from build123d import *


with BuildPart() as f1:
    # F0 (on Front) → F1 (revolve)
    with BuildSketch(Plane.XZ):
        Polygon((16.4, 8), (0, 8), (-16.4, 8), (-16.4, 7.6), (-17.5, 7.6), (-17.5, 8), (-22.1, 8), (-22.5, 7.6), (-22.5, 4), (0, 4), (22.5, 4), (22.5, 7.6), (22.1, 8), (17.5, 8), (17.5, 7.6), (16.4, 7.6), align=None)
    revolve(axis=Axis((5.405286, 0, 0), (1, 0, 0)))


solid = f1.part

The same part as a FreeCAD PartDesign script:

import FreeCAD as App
import Part
import Sketcher
Q = App.Units.Quantity


def add_polygon(sketch, points):
    """Adds a closed chain of lines whose ends are joined by coincident constraints."""
    first, n = sketch.GeometryCount, len(points)
    for a, b in zip(points, points[1:] + points[:1]):
        sketch.addGeometry(Part.LineSegment(App.Vector(*a, 0), App.Vector(*b, 0)), False)
    for i in range(n):
        sketch.addConstraint(Sketcher.Constraint("Coincident", first + i, 2, first + (i + 1) % n, 1))

doc = App.newDocument("Part")
body = doc.addObject("PartDesign::Body", "Body")

# Sketch on XZ plane
sketch1 = body.newObject("Sketcher::SketchObject", "Sketch")
sketch1.AttachmentSupport = (doc.getObject("XZ_Plane"), [""])
sketch1.MapMode = "FlatFace"
add_polygon(sketch1, [(16.4, 8), (-16.4, 8), (-16.4, 7.6), (-17.5, 7.6), (-17.5, 8), (-22.1, 8), (-22.5, 7.6), (-22.5, 4), (22.5, 4), (22.5, 7.6), (22.1, 8), (17.5, 8), (17.5, 7.6), (16.4, 7.6)])  # lines 0-13
sketch1.addConstraint([
    Sketcher.Constraint("Horizontal", 0),
    Sketcher.Constraint("Vertical", 1),
    Sketcher.Constraint("Horizontal", 2),
    Sketcher.Constraint("Vertical", 3),
    Sketcher.Constraint("Horizontal", 4),
    Sketcher.Constraint("Vertical", 6),
    Sketcher.Constraint("Horizontal", 7),
    Sketcher.Constraint("Vertical", 8),
    Sketcher.Constraint("Horizontal", 10),
    Sketcher.Constraint("Vertical", 11),
    Sketcher.Constraint("Horizontal", 12),
    Sketcher.Constraint("Vertical", 13),
    Sketcher.Constraint("Symmetric", 5, 2, 8, 2, -2),
    Sketcher.Constraint("Symmetric", 4, 2, 9, 2, -2),
    Sketcher.Constraint("Symmetric", 2, 2, 11, 2, -2),
    Sketcher.Constraint("Perpendicular", 5, 9),
    Sketcher.Constraint("Horizontal", 0, 2, 3, 2),
    Sketcher.Constraint("Horizontal", 2, 2, 5, 2),
    Sketcher.Constraint("Equal", 2, 12),
    Sketcher.Constraint("DistanceX", 7, 1, 7, 2, Q("45 mm")),
    Sketcher.Constraint("DistanceX", 0, 2, 0, 1, Q("32.8 mm")),
    Sketcher.Constraint("DistanceX", 2, 2, 2, 1, Q("1.1 mm")),
    Sketcher.Constraint("DistanceX", 4, 2, 4, 1, Q("4.6 mm")),
    Sketcher.Constraint("DistanceY", 6, 2, 6, 1, Q("3.6 mm")),
    Sketcher.Constraint("DistanceY", -1, 1, 0, 2, Q("8 mm")),
])
revolution = body.newObject("PartDesign::Revolution", "Revolution")
revolution.Profile = sketch1
revolution.ReferenceAxis = (sketch1, ["H_Axis"])
revolution.Angle = 360

doc.recompute()
